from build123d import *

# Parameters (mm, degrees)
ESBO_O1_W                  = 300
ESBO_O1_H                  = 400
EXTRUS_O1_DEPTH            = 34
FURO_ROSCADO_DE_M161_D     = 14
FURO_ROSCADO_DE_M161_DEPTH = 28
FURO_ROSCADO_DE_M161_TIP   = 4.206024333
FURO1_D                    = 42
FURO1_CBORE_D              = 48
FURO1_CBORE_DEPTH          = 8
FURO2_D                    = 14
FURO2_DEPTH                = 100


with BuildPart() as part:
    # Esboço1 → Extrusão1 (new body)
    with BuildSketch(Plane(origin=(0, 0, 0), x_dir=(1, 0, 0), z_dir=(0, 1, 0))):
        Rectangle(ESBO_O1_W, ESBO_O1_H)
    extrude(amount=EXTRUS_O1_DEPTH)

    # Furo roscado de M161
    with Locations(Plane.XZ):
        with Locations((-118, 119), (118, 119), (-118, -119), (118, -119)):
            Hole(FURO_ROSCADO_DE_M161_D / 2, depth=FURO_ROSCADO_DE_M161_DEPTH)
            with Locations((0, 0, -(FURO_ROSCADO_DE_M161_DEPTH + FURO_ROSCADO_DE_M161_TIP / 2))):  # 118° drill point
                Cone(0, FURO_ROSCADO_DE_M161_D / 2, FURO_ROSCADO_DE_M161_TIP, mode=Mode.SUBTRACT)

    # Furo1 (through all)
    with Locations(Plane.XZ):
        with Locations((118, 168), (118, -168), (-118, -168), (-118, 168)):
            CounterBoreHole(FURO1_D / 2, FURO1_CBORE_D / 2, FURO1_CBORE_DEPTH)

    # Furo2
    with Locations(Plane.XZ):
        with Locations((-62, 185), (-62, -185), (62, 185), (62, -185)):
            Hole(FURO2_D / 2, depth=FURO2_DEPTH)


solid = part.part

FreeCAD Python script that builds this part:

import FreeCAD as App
import Part
import Sketcher

V = App.Vector


def add_polygon(sketch, points):
    """Adds a closed chain of lines whose ends are joined by coincident constraints."""
    first, n = sketch.GeometryCount, len(points)
    for a, b in zip(points, points[1:] + points[:1]):
        sketch.addGeometry(Part.LineSegment(App.Vector(*a, 0), App.Vector(*b, 0)), False)
    for i in range(n):
        sketch.addConstraint(Sketcher.Constraint("Coincident", first + i, 2, first + (i + 1) % n, 1))

doc = App.newDocument("Part")
body = doc.addObject("PartDesign::Body", "Body")

sketch1 = doc.addObject("Sketcher::SketchObject", "Sketch")
body.addObject(sketch1)
sketch1.AttachmentSupport = (doc.XZ_Plane, [""])
sketch1.MapMode = "FlatFace"
add_polygon(sketch1, [(-150, -200), (-150, 200), (150, 200), (150, -200)])
sketch1.addConstraint(Sketcher.Constraint("Vertical", 0))
sketch1.addConstraint(Sketcher.Constraint("Horizontal", 1))
sketch1.addConstraint(Sketcher.Constraint("Vertical", 2))
sketch1.addConstraint(Sketcher.Constraint("Horizontal", 3))
sketch1.addConstraint(Sketcher.Constraint("Symmetric", 0, 2, 2, 2, -1, 1))
sketch1.addConstraint(Sketcher.Constraint("DistanceX", 1, 1, 1, 2, 300.0))
sketch1.addConstraint(Sketcher.Constraint("DistanceY", 0, 1, 0, 2, 400.0))
pad1 = doc.addObject("PartDesign::Pad", "Pad")
body.addObject(pad1)
pad1.Profile = sketch1
pad1.Length = 34
pad1.Reversed = True

sketch2 = doc.addObject("Sketcher::SketchObject", "Sketch001")
body.addObject(sketch2)
sketch2.AttachmentSupport = (doc.XZ_Plane, [""])
sketch2.MapMode = "FlatFace"
sketch2.addGeometry(Part.Circle(V(-118, 119, 0), V(0, 0, 1), 7), False)
sketch2.addGeometry(Part.Circle(V(118, 119, 0), V(0, 0, 1), 7), False)
sketch2.addGeometry(Part.Circle(V(-118, -119, 0), V(0, 0, 1), 7), False)
sketch2.addGeometry(Part.Circle(V(118, -119, 0), V(0, 0, 1), 7), False)
sketch2.addConstraint(Sketcher.Constraint("Equal", 0, 1))
sketch2.addConstraint(Sketcher.Constraint("Equal", 1, 2))
sketch2.addConstraint(Sketcher.Constraint("Equal", 2, 3))
sketch2.addConstraint(Sketcher.Constraint("Symmetric", 1, 3, 2, 3, -1, 1))
sketch2.addConstraint(Sketcher.Constraint("Symmetric", 0, 3, 3, 3, -1, 1))
sketch2.addConstraint(Sketcher.Constraint("Symmetric", 0, 3, 1, 3, -2))
sketch2.addConstraint(Sketcher.Constraint("Diameter", 0, 14.0))
sketch2.addConstraint(Sketcher.Constraint("DistanceX", 0, 3, -1, 1, 118.0))
sketch2.addConstraint(Sketcher.Constraint("DistanceY", -1, 1, 0, 3, 119.0))
doc.recompute()
hole = doc.addObject("PartDesign::Hole", "Hole")
body.addObject(hole)
hole.Profile = sketch2
hole.ThreadType = "None"
hole.Diameter = 14
hole.DepthType = "Dimension"
hole.Depth = 28
hole.DrillPoint = "Angled"
hole.DrillPointAngle = 118

sketch3 = doc.addObject("Sketcher::SketchObject", "Sketch002")
body.addObject(sketch3)
sketch3.AttachmentSupport = (doc.XZ_Plane, [""])
sketch3.MapMode = "FlatFace"
sketch3.addGeometry(Part.Circle(V(118, 168, 0), V(0, 0, 1), 21), False)
sketch3.addGeometry(Part.Circle(V(118, -168, 0), V(0, 0, 1), 21), False)
sketch3.addGeometry(Part.Circle(V(-118, -168, 0), V(0, 0, 1), 21), False)
sketch3.addGeometry(Part.Circle(V(-118, 168, 0), V(0, 0, 1), 21), False)
sketch3.addConstraint(Sketcher.Constraint("Equal", 0, 1))
sketch3.addConstraint(Sketcher.Constraint("Equal", 1, 2))
sketch3.addConstraint(Sketcher.Constraint("Equal", 2, 3))
sketch3.addConstraint(Sketcher.Constraint("Symmetric", 0, 3, 2, 3, -1, 1))
sketch3.addConstraint(Sketcher.Constraint("Symmetric", 1, 3, 3, 3, -1, 1))
sketch3.addConstraint(Sketcher.Constraint("Symmetric", 1, 3, 2, 3, -2))
sketch3.addConstraint(Sketcher.Constraint("Diameter", 0, 42.0))
sketch3.addConstraint(Sketcher.Constraint("DistanceX", -1, 1, 0, 3, 118.0))
sketch3.addConstraint(Sketcher.Constraint("DistanceY", -1, 1, 0, 3, 168.0))
doc.recompute()
hole2 = doc.addObject("PartDesign::Hole", "Hole001")
body.addObject(hole2)
hole2.Profile = sketch3
hole2.ThreadType = "None"
hole2.Diameter = 42
hole2.DepthType = "ThroughAll"
hole2.HoleCutType = "Counterbore"
hole2.HoleCutDiameter = 48
hole2.HoleCutDepth = 8

sketch4 = doc.addObject("Sketcher::SketchObject", "Sketch003")
body.addObject(sketch4)
sketch4.AttachmentSupport = (doc.XZ_Plane, [""])
sketch4.MapMode = "FlatFace"
sketch4.addGeometry(Part.Circle(V(-62, 185, 0), V(0, 0, 1), 7), False)
sketch4.addGeometry(Part.Circle(V(-62, -185, 0), V(0, 0, 1), 7), False)
sketch4.addGeometry(Part.Circle(V(62, 185, 0), V(0, 0, 1), 7), False)
sketch4.addGeometry(Part.Circle(V(62, -185, 0), V(0, 0, 1), 7), False)
sketch4.addConstraint(Sketcher.Constraint("Equal", 0, 1))
sketch4.addConstraint(Sketcher.Constraint("Equal", 1, 2))
sketch4.addConstraint(Sketcher.Constraint("Equal", 2, 3))
sketch4.addConstraint(Sketcher.Constraint("Symmetric", 1, 3, 2, 3, -1, 1))
sketch4.addConstraint(Sketcher.Constraint("Symmetric", 0, 3, 3, 3, -1, 1))
sketch4.addConstraint(Sketcher.Constraint("Symmetric", 0, 3, 2, 3, -2))
sketch4.addConstraint(Sketcher.Constraint("Diameter", 0, 14.0))
sketch4.addConstraint(Sketcher.Constraint("DistanceX", 0, 3, -1, 1, 62.0))
sketch4.addConstraint(Sketcher.Constraint("DistanceY", -1, 1, 0, 3, 185.0))
doc.recompute()
hole3 = doc.addObject("PartDesign::Hole", "Hole002")
body.addObject(hole3)
hole3.Profile = sketch4
hole3.ThreadType = "None"
hole3.Diameter = 14
hole3.DepthType = "Dimension"
hole3.Depth = 100
hole3.DrillPoint = "Flat"

doc.recompute()
